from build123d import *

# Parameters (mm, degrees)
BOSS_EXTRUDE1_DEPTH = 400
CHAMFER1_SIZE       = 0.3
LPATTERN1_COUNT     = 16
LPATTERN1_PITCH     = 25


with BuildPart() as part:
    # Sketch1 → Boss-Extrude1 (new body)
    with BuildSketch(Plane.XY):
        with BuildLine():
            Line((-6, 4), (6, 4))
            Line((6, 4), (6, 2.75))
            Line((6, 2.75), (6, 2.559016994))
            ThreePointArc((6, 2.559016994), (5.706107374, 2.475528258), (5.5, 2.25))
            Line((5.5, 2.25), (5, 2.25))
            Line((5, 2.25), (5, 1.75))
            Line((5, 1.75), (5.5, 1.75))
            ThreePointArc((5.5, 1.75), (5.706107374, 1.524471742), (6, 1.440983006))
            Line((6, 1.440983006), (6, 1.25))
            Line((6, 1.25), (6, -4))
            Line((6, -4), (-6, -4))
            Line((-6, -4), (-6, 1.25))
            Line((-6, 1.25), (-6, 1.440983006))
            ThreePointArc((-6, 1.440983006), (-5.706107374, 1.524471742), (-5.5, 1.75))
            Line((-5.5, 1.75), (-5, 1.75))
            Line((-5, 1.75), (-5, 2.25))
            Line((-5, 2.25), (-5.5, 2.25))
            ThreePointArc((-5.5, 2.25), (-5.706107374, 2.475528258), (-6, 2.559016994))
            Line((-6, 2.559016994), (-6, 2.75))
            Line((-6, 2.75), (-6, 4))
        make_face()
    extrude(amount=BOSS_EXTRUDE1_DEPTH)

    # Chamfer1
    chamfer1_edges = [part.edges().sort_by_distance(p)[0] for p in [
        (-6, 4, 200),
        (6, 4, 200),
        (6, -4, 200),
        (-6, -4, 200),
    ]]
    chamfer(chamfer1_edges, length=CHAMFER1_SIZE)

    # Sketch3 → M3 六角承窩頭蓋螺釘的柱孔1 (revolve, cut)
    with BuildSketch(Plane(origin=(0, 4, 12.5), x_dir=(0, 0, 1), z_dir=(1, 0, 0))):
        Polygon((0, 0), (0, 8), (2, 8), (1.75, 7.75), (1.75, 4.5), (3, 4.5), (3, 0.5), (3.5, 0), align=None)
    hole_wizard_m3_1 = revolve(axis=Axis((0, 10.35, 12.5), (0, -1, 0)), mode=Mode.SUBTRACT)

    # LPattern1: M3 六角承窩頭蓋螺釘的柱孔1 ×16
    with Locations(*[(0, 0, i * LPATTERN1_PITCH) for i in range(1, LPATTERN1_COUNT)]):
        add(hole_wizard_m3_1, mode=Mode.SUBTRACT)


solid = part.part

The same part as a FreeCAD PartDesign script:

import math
import FreeCAD as App
import Part
import Sketcher
from FreeCAD import Vector
Q = App.Units.Quantity


def edges_at(feature, points):
    """Names of the edges that pass closest to the given points."""
    edges = feature.Shape.Edges
    near = lambda p: min(range(len(edges)), key=lambda i: edges[i].distToShape(Part.Vertex(*p))[0])
    return sorted({f"Edge{near(p) + 1}" for p in points})

doc = App.newDocument("Part")
body = doc.addObject("PartDesign::Body", "Body")

sketch1 = body.newObject("Sketcher::SketchObject", "Sketch")
sketch1.AttachmentSupport = (doc.getObject("XY_Plane"), [""])
sketch1.MapMode = "FlatFace"
sketch1.addGeometry([
    Part.LineSegment(Vector(6, 4, 0), Vector(-6, 4, 0)),
    Part.LineSegment(Vector(-6, 4, 0), Vector(-6, 2.6, 0)),
    Part.ArcOfCircle(Part.Circle(Vector(-6, 2, 0), Vector(0, 0, 1), 0.6), math.radians(27), math.radians(90)),
    Part.LineSegment(Vector(-5.5, 2.2, 0), Vector(-5, 2.2, 0)),
    Part.LineSegment(Vector(-5, 2.2, 0), Vector(-5, 1.8, 0)),
    Part.LineSegment(Vector(-5, 1.8, 0), Vector(-5.5, 1.8, 0)),
    Part.ArcOfCircle(Part.Circle(Vector(-6, 2, 0), Vector(0, 0, 1), 0.6), math.radians(-90), math.radians(-27)),
    Part.LineSegment(Vector(-6, 1.4, 0), Vector(-6, -4, 0)),
    Part.LineSegment(Vector(-6, -4, 0), Vector(6, -4, 0)),
    Part.LineSegment(Vector(6, -4, 0), Vector(6, 1.4, 0)),
    Part.ArcOfCircle(Part.Circle(Vector(6, 2, 0), Vector(0, 0, 1), 0.6), math.radians(-153), math.radians(-90)),
    Part.LineSegment(Vector(5.5, 1.8, 0), Vector(5, 1.8, 0)),
    Part.LineSegment(Vector(5, 1.8, 0), Vector(5, 2.2, 0)),
    Part.LineSegment(Vector(5, 2.2, 0), Vector(5.5, 2.2, 0)),
    Part.ArcOfCircle(Part.Circle(Vector(6, 2, 0), Vector(0, 0, 1), 0.6), math.radians(90), math.radians(153)),
    Part.LineSegment(Vector(6, 2.6, 0), Vector(6, 4, 0)),
], False)
sketch1.addConstraint([
    Sketcher.Constraint("Coincident", 0, 2, 1, 1),
    Sketcher.Constraint("Coincident", 1, 2, 2, 2),
    Sketcher.Constraint("Coincident", 2, 1, 3, 1),
    Sketcher.Constraint("Coincident", 3, 2, 4, 1),
    Sketcher.Constraint("Coincident", 4, 2, 5, 1),
    Sketcher.Constraint("Coincident", 5, 2, 6, 2),
    Sketcher.Constraint("Coincident", 6, 1, 7, 1),
    Sketcher.Constraint("Coincident", 7, 2, 8, 1),
    Sketcher.Constraint("Coincident", 8, 2, 9, 1),
    Sketcher.Constraint("Coincident", 9, 2, 10, 2),
    Sketcher.Constraint("Coincident", 10, 1, 11, 1),
    Sketcher.Constraint("Coincident", 11, 2, 12, 1),
    Sketcher.Constraint("Coincident", 12, 2, 13, 1),
    Sketcher.Constraint("Coincident", 13, 2, 14, 2),
    Sketcher.Constraint("Coincident", 14, 1, 15, 1),
    Sketcher.Constraint("Coincident", 15, 2, 0, 1),
    Sketcher.Constraint("Horizontal", 0),
    Sketcher.Constraint("Vertical", 1),
    Sketcher.Constraint("Horizontal", 3),
    Sketcher.Constraint("Vertical", 4),
    Sketcher.Constraint("Horizontal", 5),
    Sketcher.Constraint("Vertical", 7),
    Sketcher.Constraint("Horizontal", 8),
    Sketcher.Constraint("Vertical", 9),
    Sketcher.Constraint("Horizontal", 11),
    Sketcher.Constraint("Vertical", 12),
    Sketcher.Constraint("Horizontal", 13),
    Sketcher.Constraint("Vertical", 15),
    Sketcher.Constraint("Coincident", 6, 3, 2, 3),
    Sketcher.Constraint("Coincident", 14, 3, 10, 3),
    Sketcher.Constraint("Equal", 2, 6),
    Sketcher.Constraint("Equal", 6, 10),
    Sketcher.Constraint("Equal", 10, 14),
    Sketcher.Constraint("Symmetric", 0, 2, 8, 2, -1, 1),
    Sketcher.Constraint("Symmetric", 2, 3, 10, 3, -2),
    Sketcher.Constraint("Symmetric", 4, 2, 11, 2, -2),
    Sketcher.Constraint("Horizontal", 3, 2, 12, 2),
    Sketcher.Constraint("Vertical", 6, 3, 0, 2),
    Sketcher.Constraint("Vertical", 2, 1, 5, 2),
    Sketcher.Constraint("Vertical", 1, 2, 6, 1),
    Sketcher.Constraint("Vertical", 9, 2, 14, 1),
    Sketcher.Constraint("Equal", 13, 4),
    Sketcher.Constraint("DistanceX", 0, 2, 0, 1, Q("12 mm")),
    Sketcher.Constraint("DistanceX", 3, 1, 3, 2, Q("0.5 mm")),
    Sketcher.Constraint("DistanceY", -1, 1, 2, 3, Q("2 mm")),
    Sketcher.Constraint("DistanceY", -1, 1, 0, 2, Q("4 mm")),
    Sketcher.Constraint("DistanceX", 3, 2, -1, 1, Q("5 mm")),
])
pad1 = body.newObject("PartDesign::Pad", "Pad")
pad1.Profile = sketch1
pad1.Length = 400
doc.recompute()

chamfer = body.newObject("PartDesign::Chamfer", "Chamfer")
chamfer.Base = (pad1, edges_at(pad1, [
    (-6, 4, 200),
    (6, 4, 200),
    (6, -4, 200),
    (-6, -4, 200),
]))
chamfer.Size = 0.3

sketch2 = body.newObject("Sketcher::SketchObject", "Sketch001")
sketch2.AttachmentSupport = (doc.getObject("YZ_Plane"), [""])
sketch2.MapMode = "FlatFace"
sketch2.addGeometry([
    Part.LineSegment(Vector(-4, 12.5, 0), Vector(4, 12.5, 0)),
    Part.LineSegment(Vector(4, 12.5, 0), Vector(4, 16, 0)),
    Part.LineSegment(Vector(4, 16, 0), Vector(3.5, 15.5, 0)),
    Part.LineSegment(Vector(3.5, 15.5, 0), Vector(-0.5, 15.5, 0)),
    Part.LineSegment(Vector(-0.5, 15.5, 0), Vector(-0.5, 14.25, 0)),
    Part.LineSegment(Vector(-0.5, 14.25, 0), Vector(-3.75, 14.25, 0)),
    Part.LineSegment(Vector(-3.75, 14.25, 0), Vector(-4, 14.5, 0)),
    Part.LineSegment(Vector(-4, 14.5, 0), Vector(-4, 12.5, 0)),
], False)
sketch2.addGeometry(Part.LineSegment(Vector(4, 12.5, 0), Vector(-4, 12.5, 0)), True)
sketch2.addConstraint([
    Sketcher.Constraint("Coincident", 0, 2, 1, 1),
    Sketcher.Constraint("Coincident", 1, 2, 2, 1),
    Sketcher.Constraint("Coincident", 2, 2, 3, 1),
    Sketcher.Constraint("Coincident", 3, 2, 4, 1),
    Sketcher.Constraint("Coincident", 4, 2, 5, 1),
    Sketcher.Constraint("Coincident", 5, 2, 6, 1),
    Sketcher.Constraint("Coincident", 6, 2, 7, 1),
    Sketcher.Constraint("Coincident", 7, 2, 0, 1),
    Sketcher.Constraint("Horizontal", 0),
    Sketcher.Constraint("Vertical", 1),
    Sketcher.Constraint("Horizontal", 3),
    Sketcher.Constraint("Vertical", 4),
    Sketcher.Constraint("Horizontal", 5),
    Sketcher.Constraint("Vertical", 7),
    Sketcher.Constraint("Horizontal", 8),
    Sketcher.Constraint("Coincident", 8, 1, 0, 2),
    Sketcher.Constraint("Perpendicular", 2, 6),
    Sketcher.Constraint("Vertical", 6, 2, 8, 2),
    Sketcher.Constraint("DistanceX", 0, 1, 0, 2, Q("8 mm")),
    Sketcher.Constraint("DistanceX", 3, 2, 3, 1, Q("4 mm")),
    Sketcher.Constraint("DistanceY", 7, 2, 7, 1, Q("2 mm")),
    Sketcher.Constraint("Angle", 2, Q("-135 deg")),
    Sketcher.Constraint("DistanceY", 1, 1, 1, 2, Q("3.5 mm")),
    Sketcher.Constraint("DistanceX", -1, 1, 0, 2, Q("4 mm")),
    Sketcher.Constraint("DistanceY", -1, 1, 1, 2, Q("16 mm")),
    Sketcher.Constraint("DistanceY", 0, 2, 2, 2, Q("3 mm")),
    Sketcher.Constraint("DistanceX", 5, 2, 5, 1, Q("3.25 mm")),
])
groove = body.newObject("PartDesign::Groove", "Groove")
groove.Profile = sketch2
groove.ReferenceAxis = (sketch2, ["Axis0"])
groove.Angle = 360
doc.recompute()

linearpattern = body.newObject("PartDesign::LinearPattern", "LinearPattern")
linearpattern.Originals = [groove]
linearpattern.Direction = (doc.getObject("Z_Axis"), [""])
linearpattern.Mode = "offset"
linearpattern.Offset = 25
linearpattern.Occurrences = 16
body.Tip = linearpattern

doc.recompute()
